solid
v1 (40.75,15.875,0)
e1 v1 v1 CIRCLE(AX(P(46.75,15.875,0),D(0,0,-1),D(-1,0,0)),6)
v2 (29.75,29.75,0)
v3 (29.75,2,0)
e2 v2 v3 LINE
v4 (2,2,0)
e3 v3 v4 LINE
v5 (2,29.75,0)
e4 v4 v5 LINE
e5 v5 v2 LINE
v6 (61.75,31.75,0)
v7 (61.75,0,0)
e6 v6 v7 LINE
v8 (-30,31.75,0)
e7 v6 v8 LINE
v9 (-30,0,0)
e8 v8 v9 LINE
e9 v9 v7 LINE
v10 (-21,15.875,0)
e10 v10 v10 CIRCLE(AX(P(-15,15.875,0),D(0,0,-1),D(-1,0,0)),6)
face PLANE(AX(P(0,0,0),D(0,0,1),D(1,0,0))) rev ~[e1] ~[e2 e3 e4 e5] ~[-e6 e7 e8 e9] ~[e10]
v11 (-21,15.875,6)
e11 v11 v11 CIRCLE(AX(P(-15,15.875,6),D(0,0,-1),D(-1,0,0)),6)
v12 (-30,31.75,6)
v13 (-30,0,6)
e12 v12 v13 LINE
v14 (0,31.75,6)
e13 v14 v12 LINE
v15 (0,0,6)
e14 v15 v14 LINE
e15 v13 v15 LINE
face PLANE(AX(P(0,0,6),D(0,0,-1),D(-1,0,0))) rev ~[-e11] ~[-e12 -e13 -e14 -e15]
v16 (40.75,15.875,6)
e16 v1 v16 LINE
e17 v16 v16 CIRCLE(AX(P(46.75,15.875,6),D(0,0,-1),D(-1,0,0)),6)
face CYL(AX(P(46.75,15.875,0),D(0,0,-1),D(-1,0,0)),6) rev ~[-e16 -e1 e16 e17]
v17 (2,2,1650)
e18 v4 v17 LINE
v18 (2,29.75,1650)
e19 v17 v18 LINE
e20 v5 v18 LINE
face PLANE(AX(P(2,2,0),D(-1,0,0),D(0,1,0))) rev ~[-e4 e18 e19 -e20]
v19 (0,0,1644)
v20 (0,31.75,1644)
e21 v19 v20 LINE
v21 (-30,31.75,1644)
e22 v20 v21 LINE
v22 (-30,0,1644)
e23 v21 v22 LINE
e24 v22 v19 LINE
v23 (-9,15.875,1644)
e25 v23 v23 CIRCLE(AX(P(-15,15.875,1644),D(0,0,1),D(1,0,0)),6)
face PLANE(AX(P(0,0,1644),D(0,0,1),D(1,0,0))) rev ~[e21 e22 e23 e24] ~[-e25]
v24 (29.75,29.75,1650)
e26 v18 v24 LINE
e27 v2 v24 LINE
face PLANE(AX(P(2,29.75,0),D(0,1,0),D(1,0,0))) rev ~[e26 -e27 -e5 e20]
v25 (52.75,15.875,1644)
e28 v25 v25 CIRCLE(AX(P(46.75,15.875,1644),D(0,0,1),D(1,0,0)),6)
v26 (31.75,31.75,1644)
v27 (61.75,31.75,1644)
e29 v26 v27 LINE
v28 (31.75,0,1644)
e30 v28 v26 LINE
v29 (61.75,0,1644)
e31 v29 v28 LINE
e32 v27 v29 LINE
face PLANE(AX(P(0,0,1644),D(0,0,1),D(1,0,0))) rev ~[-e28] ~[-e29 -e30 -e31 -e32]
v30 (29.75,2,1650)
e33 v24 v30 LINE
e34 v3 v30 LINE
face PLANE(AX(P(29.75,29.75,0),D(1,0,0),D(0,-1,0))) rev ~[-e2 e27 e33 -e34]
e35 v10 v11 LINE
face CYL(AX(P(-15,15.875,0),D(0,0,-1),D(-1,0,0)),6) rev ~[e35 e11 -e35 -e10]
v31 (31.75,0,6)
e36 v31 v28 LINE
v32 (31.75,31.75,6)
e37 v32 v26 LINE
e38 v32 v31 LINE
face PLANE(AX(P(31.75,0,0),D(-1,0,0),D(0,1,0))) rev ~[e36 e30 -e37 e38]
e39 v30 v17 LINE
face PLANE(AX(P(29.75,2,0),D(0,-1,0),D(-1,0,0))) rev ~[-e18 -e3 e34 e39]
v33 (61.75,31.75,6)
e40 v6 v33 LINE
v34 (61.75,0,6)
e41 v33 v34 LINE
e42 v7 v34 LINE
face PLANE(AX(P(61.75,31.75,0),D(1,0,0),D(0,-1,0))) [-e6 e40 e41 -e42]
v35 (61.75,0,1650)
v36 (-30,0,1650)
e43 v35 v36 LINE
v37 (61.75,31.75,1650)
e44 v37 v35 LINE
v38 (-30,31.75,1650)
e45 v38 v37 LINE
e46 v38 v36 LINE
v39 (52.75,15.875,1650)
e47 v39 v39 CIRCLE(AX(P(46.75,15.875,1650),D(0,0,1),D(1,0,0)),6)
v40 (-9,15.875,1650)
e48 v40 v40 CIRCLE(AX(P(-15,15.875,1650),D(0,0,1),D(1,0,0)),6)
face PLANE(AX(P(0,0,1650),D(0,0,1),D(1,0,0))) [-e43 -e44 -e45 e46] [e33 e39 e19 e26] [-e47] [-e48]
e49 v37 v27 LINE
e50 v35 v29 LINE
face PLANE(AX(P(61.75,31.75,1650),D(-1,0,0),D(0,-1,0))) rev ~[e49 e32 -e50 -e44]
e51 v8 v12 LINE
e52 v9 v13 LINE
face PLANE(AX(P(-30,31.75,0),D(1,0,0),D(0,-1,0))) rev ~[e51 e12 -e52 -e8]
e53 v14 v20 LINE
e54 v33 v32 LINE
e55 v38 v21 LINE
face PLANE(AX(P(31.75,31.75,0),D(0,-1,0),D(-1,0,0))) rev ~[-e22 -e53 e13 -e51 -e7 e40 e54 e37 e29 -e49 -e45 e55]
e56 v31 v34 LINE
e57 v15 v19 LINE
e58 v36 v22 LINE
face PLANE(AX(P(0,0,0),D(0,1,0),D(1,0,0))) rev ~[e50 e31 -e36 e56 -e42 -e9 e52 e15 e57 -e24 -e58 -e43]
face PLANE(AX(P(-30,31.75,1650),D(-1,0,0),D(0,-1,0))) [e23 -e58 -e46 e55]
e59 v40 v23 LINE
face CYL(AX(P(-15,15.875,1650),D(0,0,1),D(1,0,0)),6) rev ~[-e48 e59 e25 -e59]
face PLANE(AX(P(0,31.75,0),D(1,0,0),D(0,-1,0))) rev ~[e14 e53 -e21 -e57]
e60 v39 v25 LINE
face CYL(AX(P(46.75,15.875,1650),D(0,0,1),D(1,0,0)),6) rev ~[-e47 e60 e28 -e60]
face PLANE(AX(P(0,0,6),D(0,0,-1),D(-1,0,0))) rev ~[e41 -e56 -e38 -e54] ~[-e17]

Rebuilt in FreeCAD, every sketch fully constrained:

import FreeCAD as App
import Part
import Sketcher
Q = App.Units.Quantity

doc = App.newDocument("Part")
body = doc.addObject("PartDesign::Body", "Body")

# Sketch on XY plane
sketch1 = body.newObject("Sketcher::SketchObject", "Sketch")
sketch1.AttachmentSupport = (doc.getObject("XY_Plane"), [""])
sketch1.MapMode = "FlatFace"
sketch1.addGeometry([
    Part.LineSegment(App.Vector(0, 31.75, 0), App.Vector(0, 0, 0)),  # 0
    Part.LineSegment(App.Vector(0, 0, 0), App.Vector(31.75, 0, 0)),  # 1
    Part.LineSegment(App.Vector(31.75, 0, 0), App.Vector(31.75, 31.75, 0)),  # 2
    Part.LineSegment(App.Vector(31.75, 31.75, 0), App.Vector(0, 31.75, 0)),  # 3
    Part.LineSegment(App.Vector(2, 2, 0), App.Vector(2, 29.75, 0)),  # 4
    Part.LineSegment(App.Vector(2, 29.75, 0), App.Vector(29.75, 29.75, 0)),  # 5
    Part.LineSegment(App.Vector(29.75, 29.75, 0), App.Vector(29.75, 2, 0)),  # 6
    Part.LineSegment(App.Vector(29.75, 2, 0), App.Vector(2, 2, 0)),  # 7
], False)
sketch1.addConstraint([
    Sketcher.Constraint("Coincident", 0, 2, 1, 1),
    Sketcher.Constraint("Coincident", 1, 2, 2, 1),
    Sketcher.Constraint("Coincident", 2, 2, 3, 1),
    Sketcher.Constraint("Coincident", 3, 2, 0, 1),
    Sketcher.Constraint("Coincident", 4, 2, 5, 1),
    Sketcher.Constraint("Coincident", 5, 2, 6, 1),
    Sketcher.Constraint("Coincident", 6, 2, 7, 1),
    Sketcher.Constraint("Coincident", 7, 2, 4, 1),
    Sketcher.Constraint("Vertical", 0),
    Sketcher.Constraint("Horizontal", 1),
    Sketcher.Constraint("Vertical", 2),
    Sketcher.Constraint("Horizontal", 3),
    Sketcher.Constraint("Vertical", 4),
    Sketcher.Constraint("Horizontal", 5),
    Sketcher.Constraint("Vertical", 6),
    Sketcher.Constraint("Horizontal", 7),
    Sketcher.Constraint("Coincident", 0, 2, -1, 1),
    Sketcher.Constraint("Equal", 3, 0),
    Sketcher.Constraint("Equal", 7, 4),
    Sketcher.Constraint("DistanceX", -1, 1, 4, 2, Q("2 mm")),
    Sketcher.Constraint("DistanceY", -1, 1, 6, 2, Q("2 mm")),
    Sketcher.Constraint("DistanceY", 4, 2, 3, 2, Q("2 mm")),
    Sketcher.Constraint("DistanceX", 1, 1, 1, 2, Q("31.75 mm")),
])
pad1 = body.newObject("PartDesign::Pad", "Pad")
pad1.Profile = sketch1
pad1.Length = 1650

# Sketch on XY plane
sketch2 = body.newObject("Sketcher::SketchObject", "Sketch001")
sketch2.AttachmentSupport = (doc.getObject("XY_Plane"), [""])
sketch2.MapMode = "FlatFace"
sketch2.AttachmentOffset = App.Placement(App.Vector(0, 0, 1650), App.Rotation())
sketch2.addGeometry([
    Part.LineSegment(App.Vector(0, 0, 0), App.Vector(0, 31.75, 0)),  # 0
    Part.LineSegment(App.Vector(0, 31.75, 0), App.Vector(-30, 31.75, 0)),  # 1
    Part.LineSegment(App.Vector(-30, 31.75, 0), App.Vector(-30, 0, 0)),  # 2
    Part.LineSegment(App.Vector(-30, 0, 0), App.Vector(0, 0, 0)),  # 3
    Part.Circle(App.Vector(-15, 15.875, 0), App.Vector(0, 0, 1), 6),  # 4
    Part.LineSegment(App.Vector(61.75, 31.75, 0), App.Vector(31.75, 31.75, 0)),  # 5
    Part.LineSegment(App.Vector(31.75, 31.75, 0), App.Vector(31.75, 0, 0)),  # 6
    Part.LineSegment(App.Vector(31.75, 0, 0), App.Vector(61.75, 0, 0)),  # 7
    Part.LineSegment(App.Vector(61.75, 0, 0), App.Vector(61.75, 31.75, 0)),  # 8
    Part.Circle(App.Vector(46.75, 15.875, 0), App.Vector(0, 0, 1), 6),  # 9
], False)
sketch2.addConstraint([
    Sketcher.Constraint("Coincident", 0, 2, 1, 1),
    Sketcher.Constraint("Coincident", 1, 2, 2, 1),
    Sketcher.Constraint("Coincident", 2, 2, 3, 1),
    Sketcher.Constraint("Coincident", 3, 2, 0, 1),
    Sketcher.Constraint("Coincident", 5, 2, 6, 1),
    Sketcher.Constraint("Coincident", 6, 2, 7, 1),
    Sketcher.Constraint("Coincident", 7, 2, 8, 1),
    Sketcher.Constraint("Coincident", 8, 2, 5, 1),
    Sketcher.Constraint("Vertical", 0),
    Sketcher.Constraint("Horizontal", 1),
    Sketcher.Constraint("Vertical", 2),
    Sketcher.Constraint("Horizontal", 3),
    Sketcher.Constraint("Horizontal", 5),
    Sketcher.Constraint("Vertical", 6),
    Sketcher.Constraint("Horizontal", 7),
    Sketcher.Constraint("Vertical", 8),
    Sketcher.Constraint("Coincident", 3, 2, -1, 1),
    Sketcher.Constraint("Equal", 4, 9),
    Sketcher.Constraint("PointOnObject", 6, 2, -1),
    Sketcher.Constraint("Horizontal", 4, 3, 9, 3),
    Sketcher.Constraint("Horizontal", 1, 2, 5, 2),
    Sketcher.Constraint("Equal", 3, 5),
    Sketcher.Constraint("Diameter", 4, Q("12 mm")),
    Sketcher.Constraint("DistanceX", 1, 2, 1, 1, Q("30 mm")),
    Sketcher.Constraint("DistanceX", 4, 3, -1, 1, Q("15 mm")),
    Sketcher.Constraint("DistanceX", 5, 2, 9, 3, Q("15 mm")),
    Sketcher.Constraint("DistanceY", 0, 1, 0, 2, Q("31.75 mm")),
    Sketcher.Constraint("DistanceX", -1, 1, 9, 3, Q("46.75 mm")),
    Sketcher.Constraint("DistanceY", -1, 1, 4, 3, Q("15.875 mm")),
])
pad2 = body.newObject("PartDesign::Pad", "Pad001")
pad2.Profile = sketch2
pad2.Length = 6
pad2.Reversed = True

# Sketch on XY plane
sketch3 = body.newObject("Sketcher::SketchObject", "Sketch002")
sketch3.AttachmentSupport = (doc.getObject("XY_Plane"), [""])
sketch3.MapMode = "FlatFace"
sketch3.addGeometry([
    Part.LineSegment(App.Vector(31.75, 31.75, 0), App.Vector(61.75, 31.75, 0)),  # 0
    Part.LineSegment(App.Vector(61.75, 31.75, 0), App.Vector(61.75, 0, 0)),  # 1
    Part.LineSegment(App.Vector(61.75, 0, 0), App.Vector(31.75, 0, 0)),  # 2
    Part.LineSegment(App.Vector(31.75, 0, 0), App.Vector(31.75, 31.75, 0)),  # 3
    Part.Circle(App.Vector(46.75, 15.875, 0), App.Vector(0, 0, 1), 6),  # 4
    Part.LineSegment(App.Vector(-30, 31.75, 0), App.Vector(0, 31.75, 0)),  # 5
    Part.LineSegment(App.Vector(0, 31.75, 0), App.Vector(0, 0, 0)),  # 6
    Part.LineSegment(App.Vector(0, 0, 0), App.Vector(-30, 0, 0)),  # 7
    Part.LineSegment(App.Vector(-30, 0, 0), App.Vector(-30, 31.75, 0)),  # 8
    Part.Circle(App.Vector(-15, 15.875, 0), App.Vector(0, 0, 1), 6),  # 9
], False)
sketch3.addConstraint([
    Sketcher.Constraint("Coincident", 0, 2, 1, 1),
    Sketcher.Constraint("Coincident", 1, 2, 2, 1),
    Sketcher.Constraint("Coincident", 2, 2, 3, 1),
    Sketcher.Constraint("Coincident", 3, 2, 0, 1),
    Sketcher.Constraint("Coincident", 5, 2, 6, 1),
    Sketcher.Constraint("Coincident", 6, 2, 7, 1),
    Sketcher.Constraint("Coincident", 7, 2, 8, 1),
    Sketcher.Constraint("Coincident", 8, 2, 5, 1),
    Sketcher.Constraint("Horizontal", 0),
    Sketcher.Constraint("Vertical", 1),
    Sketcher.Constraint("Horizontal", 2),
    Sketcher.Constraint("Vertical", 3),
    Sketcher.Constraint("Horizontal", 5),
    Sketcher.Constraint("Vertical", 6),
    Sketcher.Constraint("Horizontal", 7),
    Sketcher.Constraint("Vertical", 8),
    Sketcher.Constraint("Coincident", 6, 2, -1, 1),
    Sketcher.Constraint("Equal", 4, 9),
    Sketcher.Constraint("PointOnObject", 1, 2, -1),
    Sketcher.Constraint("Horizontal", 4, 3, 9, 3),
    Sketcher.Constraint("Horizontal", 3, 2, 5, 2),
    Sketcher.Constraint("Equal", 2, 5),
    Sketcher.Constraint("Diameter", 4, Q("12 mm")),
    Sketcher.Constraint("DistanceX", 0, 1, 0, 2, Q("30 mm")),
    Sketcher.Constraint("DistanceX", 9, 3, -1, 1, Q("15 mm")),
    Sketcher.Constraint("DistanceX", 4, 3, 0, 2, Q("15 mm")),
    Sketcher.Constraint("DistanceY", 1, 2, 1, 1, Q("31.75 mm")),
    Sketcher.Constraint("DistanceX", -1, 1, 4, 3, Q("46.75 mm")),
    Sketcher.Constraint("DistanceY", -1, 1, 4, 3, Q("15.875 mm")),
])
pad3 = body.newObject("PartDesign::Pad", "Pad002")
pad3.Profile = sketch3
pad3.Length = 6

doc.recompute()
